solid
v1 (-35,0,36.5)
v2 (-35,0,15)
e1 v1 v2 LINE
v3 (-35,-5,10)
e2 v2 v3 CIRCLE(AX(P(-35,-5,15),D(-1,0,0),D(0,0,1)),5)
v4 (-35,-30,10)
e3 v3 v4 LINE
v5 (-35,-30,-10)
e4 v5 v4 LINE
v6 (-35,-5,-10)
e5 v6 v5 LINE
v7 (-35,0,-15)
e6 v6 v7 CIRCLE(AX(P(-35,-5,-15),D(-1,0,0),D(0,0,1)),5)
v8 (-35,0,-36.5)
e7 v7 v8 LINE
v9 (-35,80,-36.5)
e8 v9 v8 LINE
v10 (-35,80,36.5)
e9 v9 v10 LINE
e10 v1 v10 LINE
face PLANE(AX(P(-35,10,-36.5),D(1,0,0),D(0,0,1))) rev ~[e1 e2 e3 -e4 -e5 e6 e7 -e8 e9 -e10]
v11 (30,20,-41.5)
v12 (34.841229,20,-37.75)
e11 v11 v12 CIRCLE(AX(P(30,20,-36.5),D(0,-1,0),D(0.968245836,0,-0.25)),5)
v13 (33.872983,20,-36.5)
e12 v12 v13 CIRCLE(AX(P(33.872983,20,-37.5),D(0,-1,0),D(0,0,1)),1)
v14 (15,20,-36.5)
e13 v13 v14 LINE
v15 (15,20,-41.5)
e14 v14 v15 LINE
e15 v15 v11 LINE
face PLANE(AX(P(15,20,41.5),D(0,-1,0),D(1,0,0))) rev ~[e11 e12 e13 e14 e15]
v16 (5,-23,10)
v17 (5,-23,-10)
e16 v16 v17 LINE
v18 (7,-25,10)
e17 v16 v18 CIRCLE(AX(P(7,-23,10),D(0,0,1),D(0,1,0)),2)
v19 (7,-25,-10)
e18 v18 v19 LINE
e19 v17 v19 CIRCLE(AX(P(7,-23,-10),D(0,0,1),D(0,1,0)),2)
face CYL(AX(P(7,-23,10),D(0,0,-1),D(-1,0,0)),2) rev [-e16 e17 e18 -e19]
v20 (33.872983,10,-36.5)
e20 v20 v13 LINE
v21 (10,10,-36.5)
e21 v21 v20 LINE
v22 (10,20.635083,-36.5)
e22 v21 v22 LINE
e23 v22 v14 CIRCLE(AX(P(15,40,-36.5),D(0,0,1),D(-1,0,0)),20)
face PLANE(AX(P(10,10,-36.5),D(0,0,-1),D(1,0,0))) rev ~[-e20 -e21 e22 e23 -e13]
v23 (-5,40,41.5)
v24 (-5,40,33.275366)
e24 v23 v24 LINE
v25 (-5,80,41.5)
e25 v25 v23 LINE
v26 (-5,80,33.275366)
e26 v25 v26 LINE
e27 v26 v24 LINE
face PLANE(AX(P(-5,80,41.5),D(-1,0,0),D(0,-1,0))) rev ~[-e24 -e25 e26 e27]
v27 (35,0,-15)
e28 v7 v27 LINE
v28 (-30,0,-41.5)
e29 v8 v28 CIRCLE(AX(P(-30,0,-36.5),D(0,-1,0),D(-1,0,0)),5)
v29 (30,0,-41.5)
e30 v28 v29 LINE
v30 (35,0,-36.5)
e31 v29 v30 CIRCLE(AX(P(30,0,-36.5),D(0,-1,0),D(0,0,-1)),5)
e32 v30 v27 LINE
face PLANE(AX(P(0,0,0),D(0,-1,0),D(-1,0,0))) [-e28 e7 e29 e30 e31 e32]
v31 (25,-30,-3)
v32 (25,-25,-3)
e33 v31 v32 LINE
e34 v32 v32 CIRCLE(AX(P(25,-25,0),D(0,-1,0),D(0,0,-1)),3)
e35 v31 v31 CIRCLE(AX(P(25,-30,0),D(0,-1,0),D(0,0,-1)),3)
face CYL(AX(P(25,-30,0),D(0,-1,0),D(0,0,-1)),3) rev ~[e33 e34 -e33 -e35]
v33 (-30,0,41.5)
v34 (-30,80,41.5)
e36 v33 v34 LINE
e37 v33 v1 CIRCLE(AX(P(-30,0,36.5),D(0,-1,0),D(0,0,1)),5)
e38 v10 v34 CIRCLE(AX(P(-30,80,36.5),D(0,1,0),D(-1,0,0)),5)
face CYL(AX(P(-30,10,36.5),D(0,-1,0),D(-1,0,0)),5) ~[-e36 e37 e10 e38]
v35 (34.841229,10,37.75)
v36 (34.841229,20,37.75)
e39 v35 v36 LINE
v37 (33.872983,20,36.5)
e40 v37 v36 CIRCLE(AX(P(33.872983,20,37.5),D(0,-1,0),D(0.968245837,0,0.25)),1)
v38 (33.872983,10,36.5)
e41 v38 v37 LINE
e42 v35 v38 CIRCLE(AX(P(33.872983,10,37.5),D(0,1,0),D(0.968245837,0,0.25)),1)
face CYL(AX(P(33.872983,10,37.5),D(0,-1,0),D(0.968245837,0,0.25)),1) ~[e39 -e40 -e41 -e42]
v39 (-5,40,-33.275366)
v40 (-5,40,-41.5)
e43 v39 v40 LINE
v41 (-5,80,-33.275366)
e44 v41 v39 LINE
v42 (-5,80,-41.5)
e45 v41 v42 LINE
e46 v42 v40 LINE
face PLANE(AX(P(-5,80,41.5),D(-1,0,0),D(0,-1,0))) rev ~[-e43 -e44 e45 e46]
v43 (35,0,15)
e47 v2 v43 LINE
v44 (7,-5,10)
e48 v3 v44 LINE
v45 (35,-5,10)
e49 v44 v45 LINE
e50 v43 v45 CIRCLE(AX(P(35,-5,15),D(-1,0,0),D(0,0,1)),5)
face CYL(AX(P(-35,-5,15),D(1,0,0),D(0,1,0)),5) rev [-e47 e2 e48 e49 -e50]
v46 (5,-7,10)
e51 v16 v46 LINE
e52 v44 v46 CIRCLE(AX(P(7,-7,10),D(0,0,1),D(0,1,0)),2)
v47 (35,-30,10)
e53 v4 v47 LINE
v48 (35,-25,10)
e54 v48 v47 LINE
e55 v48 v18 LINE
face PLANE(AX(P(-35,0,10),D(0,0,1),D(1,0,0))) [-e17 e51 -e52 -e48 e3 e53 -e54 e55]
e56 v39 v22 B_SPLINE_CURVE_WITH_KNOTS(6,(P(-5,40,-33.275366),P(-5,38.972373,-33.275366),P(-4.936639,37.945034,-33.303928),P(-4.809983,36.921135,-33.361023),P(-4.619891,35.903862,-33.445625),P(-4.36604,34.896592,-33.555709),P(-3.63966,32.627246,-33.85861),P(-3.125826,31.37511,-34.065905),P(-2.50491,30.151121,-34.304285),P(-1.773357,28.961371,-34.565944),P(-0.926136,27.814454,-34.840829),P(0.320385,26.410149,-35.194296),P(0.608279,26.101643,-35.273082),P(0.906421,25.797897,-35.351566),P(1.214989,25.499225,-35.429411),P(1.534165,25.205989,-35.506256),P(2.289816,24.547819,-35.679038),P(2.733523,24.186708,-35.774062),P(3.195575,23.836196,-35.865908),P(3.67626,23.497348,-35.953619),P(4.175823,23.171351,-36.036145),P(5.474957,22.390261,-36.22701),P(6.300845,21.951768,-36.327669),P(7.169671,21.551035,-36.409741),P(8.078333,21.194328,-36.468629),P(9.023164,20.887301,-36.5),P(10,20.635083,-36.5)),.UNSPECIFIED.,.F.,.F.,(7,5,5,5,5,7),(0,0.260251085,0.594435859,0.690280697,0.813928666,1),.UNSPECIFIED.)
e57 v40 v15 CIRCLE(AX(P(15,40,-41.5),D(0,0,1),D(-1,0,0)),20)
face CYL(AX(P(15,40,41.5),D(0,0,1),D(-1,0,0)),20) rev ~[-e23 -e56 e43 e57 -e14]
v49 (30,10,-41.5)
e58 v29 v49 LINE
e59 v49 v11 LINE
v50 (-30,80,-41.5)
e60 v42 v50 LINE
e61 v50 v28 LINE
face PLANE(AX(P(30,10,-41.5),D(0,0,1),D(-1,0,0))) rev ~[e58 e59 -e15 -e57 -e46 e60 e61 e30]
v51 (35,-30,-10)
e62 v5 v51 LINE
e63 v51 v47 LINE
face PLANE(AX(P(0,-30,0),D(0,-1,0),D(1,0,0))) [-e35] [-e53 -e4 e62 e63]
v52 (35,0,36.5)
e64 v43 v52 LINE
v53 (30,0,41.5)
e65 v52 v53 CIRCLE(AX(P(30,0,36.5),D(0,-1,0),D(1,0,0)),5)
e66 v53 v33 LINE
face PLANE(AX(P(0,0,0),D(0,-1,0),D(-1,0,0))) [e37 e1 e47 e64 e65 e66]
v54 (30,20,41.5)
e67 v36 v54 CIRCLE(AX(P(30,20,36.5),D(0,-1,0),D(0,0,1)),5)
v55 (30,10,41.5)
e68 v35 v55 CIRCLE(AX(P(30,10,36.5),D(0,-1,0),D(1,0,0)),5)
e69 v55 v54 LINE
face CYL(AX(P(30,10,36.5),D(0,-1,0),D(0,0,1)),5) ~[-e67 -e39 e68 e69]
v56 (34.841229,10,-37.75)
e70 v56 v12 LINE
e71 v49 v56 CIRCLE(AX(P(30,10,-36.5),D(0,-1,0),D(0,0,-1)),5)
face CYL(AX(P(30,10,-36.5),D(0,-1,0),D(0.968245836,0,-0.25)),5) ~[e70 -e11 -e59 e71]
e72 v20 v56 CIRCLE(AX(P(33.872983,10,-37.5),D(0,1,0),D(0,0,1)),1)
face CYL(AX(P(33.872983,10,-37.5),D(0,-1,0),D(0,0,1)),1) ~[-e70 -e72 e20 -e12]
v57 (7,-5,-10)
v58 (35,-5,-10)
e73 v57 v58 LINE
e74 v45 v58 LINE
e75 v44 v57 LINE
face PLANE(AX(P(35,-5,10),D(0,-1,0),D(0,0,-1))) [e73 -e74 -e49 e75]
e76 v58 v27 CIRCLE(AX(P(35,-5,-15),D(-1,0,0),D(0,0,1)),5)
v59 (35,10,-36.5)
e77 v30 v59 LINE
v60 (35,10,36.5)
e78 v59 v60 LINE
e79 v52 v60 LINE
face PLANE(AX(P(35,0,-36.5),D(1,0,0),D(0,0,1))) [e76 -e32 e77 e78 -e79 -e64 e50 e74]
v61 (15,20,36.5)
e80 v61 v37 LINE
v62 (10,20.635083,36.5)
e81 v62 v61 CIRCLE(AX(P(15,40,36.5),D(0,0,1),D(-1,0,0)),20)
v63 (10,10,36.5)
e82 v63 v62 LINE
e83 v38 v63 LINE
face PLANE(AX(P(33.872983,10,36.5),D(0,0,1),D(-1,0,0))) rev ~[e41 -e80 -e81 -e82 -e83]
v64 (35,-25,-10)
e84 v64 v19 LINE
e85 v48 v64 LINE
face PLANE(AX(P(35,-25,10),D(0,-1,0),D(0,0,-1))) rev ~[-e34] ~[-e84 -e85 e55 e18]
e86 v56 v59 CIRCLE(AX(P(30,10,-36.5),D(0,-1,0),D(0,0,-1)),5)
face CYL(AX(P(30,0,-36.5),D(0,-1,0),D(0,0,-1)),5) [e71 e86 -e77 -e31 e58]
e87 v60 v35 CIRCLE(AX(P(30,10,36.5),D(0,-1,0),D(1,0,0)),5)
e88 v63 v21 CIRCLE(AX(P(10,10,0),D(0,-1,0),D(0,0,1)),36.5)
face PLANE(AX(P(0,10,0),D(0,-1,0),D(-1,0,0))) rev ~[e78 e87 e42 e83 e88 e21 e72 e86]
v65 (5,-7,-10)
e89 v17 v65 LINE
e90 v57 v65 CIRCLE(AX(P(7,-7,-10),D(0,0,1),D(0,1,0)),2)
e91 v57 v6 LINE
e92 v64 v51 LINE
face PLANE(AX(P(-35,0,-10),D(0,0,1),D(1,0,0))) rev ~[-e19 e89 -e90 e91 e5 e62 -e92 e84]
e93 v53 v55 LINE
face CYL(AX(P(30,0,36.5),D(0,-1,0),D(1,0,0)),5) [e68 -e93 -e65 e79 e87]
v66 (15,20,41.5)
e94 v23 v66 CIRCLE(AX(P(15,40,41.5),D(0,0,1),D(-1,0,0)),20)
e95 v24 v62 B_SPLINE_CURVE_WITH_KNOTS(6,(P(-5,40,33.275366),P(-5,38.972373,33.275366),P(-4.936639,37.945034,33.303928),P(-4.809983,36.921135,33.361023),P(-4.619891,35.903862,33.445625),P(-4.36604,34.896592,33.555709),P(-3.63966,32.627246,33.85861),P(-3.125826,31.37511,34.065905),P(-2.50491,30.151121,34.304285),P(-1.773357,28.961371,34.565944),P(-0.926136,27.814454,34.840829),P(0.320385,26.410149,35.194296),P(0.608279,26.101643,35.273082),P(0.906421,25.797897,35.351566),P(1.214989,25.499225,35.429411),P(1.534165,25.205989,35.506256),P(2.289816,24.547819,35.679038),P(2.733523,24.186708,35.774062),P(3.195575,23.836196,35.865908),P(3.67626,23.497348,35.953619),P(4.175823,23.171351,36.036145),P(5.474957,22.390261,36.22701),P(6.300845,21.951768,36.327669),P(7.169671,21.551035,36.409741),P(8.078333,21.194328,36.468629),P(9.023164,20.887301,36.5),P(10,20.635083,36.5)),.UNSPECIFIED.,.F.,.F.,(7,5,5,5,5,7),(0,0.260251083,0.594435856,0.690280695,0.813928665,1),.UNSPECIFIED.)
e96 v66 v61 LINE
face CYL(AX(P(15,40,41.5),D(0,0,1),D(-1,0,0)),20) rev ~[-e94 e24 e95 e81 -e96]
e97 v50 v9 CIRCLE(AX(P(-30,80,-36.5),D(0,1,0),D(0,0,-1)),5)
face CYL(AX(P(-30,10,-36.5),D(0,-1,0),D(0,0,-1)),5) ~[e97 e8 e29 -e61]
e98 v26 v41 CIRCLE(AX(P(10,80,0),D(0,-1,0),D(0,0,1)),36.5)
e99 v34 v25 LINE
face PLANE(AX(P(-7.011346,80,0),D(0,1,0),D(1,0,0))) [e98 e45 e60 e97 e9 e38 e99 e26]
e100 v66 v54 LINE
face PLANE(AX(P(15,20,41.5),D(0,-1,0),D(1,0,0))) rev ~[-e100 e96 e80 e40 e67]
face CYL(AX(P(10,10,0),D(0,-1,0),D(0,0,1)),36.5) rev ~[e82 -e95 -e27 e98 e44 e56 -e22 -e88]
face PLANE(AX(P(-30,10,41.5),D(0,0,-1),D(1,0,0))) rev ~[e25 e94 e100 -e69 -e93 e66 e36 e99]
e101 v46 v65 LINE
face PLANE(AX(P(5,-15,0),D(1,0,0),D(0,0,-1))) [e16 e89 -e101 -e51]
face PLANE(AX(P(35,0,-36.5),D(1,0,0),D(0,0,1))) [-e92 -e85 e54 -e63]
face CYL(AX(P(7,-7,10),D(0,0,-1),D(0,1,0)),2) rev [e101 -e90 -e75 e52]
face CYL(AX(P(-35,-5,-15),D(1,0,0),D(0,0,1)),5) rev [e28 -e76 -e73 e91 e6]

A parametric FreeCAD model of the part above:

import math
import FreeCAD as App
import Part
import Sketcher
from FreeCAD import Vector
Q = App.Units.Quantity


def edges_at(feature, points):
    """Names of the edges that pass closest to the given points."""
    edges = feature.Shape.Edges
    near = lambda p: min(range(len(edges)), key=lambda i: edges[i].distToShape(Part.Vertex(*p))[0])
    return sorted({f"Edge{near(p) + 1}" for p in points})


def add_polygon(sketch, points):
    """Adds a closed chain of lines whose ends are joined by coincident constraints."""
    first, n = sketch.GeometryCount, len(points)
    for a, b in zip(points, points[1:] + points[:1]):
        sketch.addGeometry(Part.LineSegment(App.Vector(*a, 0), App.Vector(*b, 0)), False)
    for i in range(n):
        sketch.addConstraint(Sketcher.Constraint("Coincident", first + i, 2, first + (i + 1) % n, 1))

doc = App.newDocument("Part")
params = doc.addObject("Spreadsheet::Sheet", "Params")
for row, (alias, value) in enumerate([
    ("sketch1_radius", "5 mm"),
    ("sketch1_width", "60 mm"),
    ("sketch1_height", "73 mm"),
    ("pad1_length", "10 mm"),
    ("sketch2_radius", "5 mm"),
    ("sketch2_radius2", "1 mm"),
    ("sketch2_radius3", "36.5 mm"),
    ("sketch2_width", "60 mm"),
    ("pad2_length", "70 mm"),
    ("sketch3_width", "70 mm"),
    ("sketch3_height", "20 mm"),
    ("pad3_length", "30 mm"),
    ("sketch4_diameter", "6 mm"),
    ("pocket1_length", "15 mm"),
    ("fillet_radius", "5 mm"),
    ("sketch5_width", "20 mm"),
    ("pocket2_length", "30 mm"),
    ("fillet2_radius", "2 mm"),
    ("sketch6_radius", "20 mm"),
    ("sketch6_width", "40 mm"),
], start=1):
    params.set(f"A{row}", alias)
    params.set(f"B{row}", "=" + value)
    params.setAlias(f"B{row}", alias)

body = doc.addObject("PartDesign::Body", "Body")

# Sketch on XZ plane
sketch1 = body.newObject("Sketcher::SketchObject", "Sketch")
sketch1.AttachmentSupport = (doc.getObject("XZ_Plane"), [""])
sketch1.MapMode = "FlatFace"
sketch1.addGeometry(Part.LineSegment(Vector(30, -42, 0), Vector(-30, -42, 0)), False)
sketch1.addGeometry(Part.ArcOfCircle(Part.Circle(Vector(-30, -36, 0), Vector(0, 0, 1), 5), math.radians(180), math.radians(270)), False)
sketch1.addGeometry(Part.LineSegment(Vector(-35, -36, 0), Vector(-35, 36, 0)), False)
sketch1.addGeometry(Part.ArcOfCircle(Part.Circle(Vector(-30, 36, 0), Vector(0, 0, 1), 5), math.radians(90), math.radians(180)), False)
sketch1.addGeometry(Part.LineSegment(Vector(-30, 42, 0), Vector(30, 42, 0)), False)
sketch1.addGeometry(Part.ArcOfCircle(Part.Circle(Vector(30, 36, 0), Vector(0, 0, 1), 5), math.radians(0), math.radians(90)), False)
sketch1.addGeometry(Part.LineSegment(Vector(35, 36, 0), Vector(35, -36, 0)), False)
sketch1.addGeometry(Part.ArcOfCircle(Part.Circle(Vector(30, -36, 0), Vector(0, 0, 1), 5), math.radians(-90), math.radians(0)), False)
sketch1.addConstraint(Sketcher.Constraint("Tangent", 0, 2, 1, 2))
sketch1.addConstraint(Sketcher.Constraint("Tangent", 1, 1, 2, 1))
sketch1.addConstraint(Sketcher.Constraint("Tangent", 2, 2, 3, 2))
sketch1.addConstraint(Sketcher.Constraint("Tangent", 3, 1, 4, 1))
sketch1.addConstraint(Sketcher.Constraint("Tangent", 4, 2, 5, 2))
sketch1.addConstraint(Sketcher.Constraint("Tangent", 5, 1, 6, 1))
sketch1.addConstraint(Sketcher.Constraint("Tangent", 6, 2, 7, 2))
sketch1.addConstraint(Sketcher.Constraint("Tangent", 7, 1, 0, 1))
sketch1.addConstraint(Sketcher.Constraint("Horizontal", 0))
sketch1.addConstraint(Sketcher.Constraint("Vertical", 2))
sketch1.addConstraint(Sketcher.Constraint("Horizontal", 4))
sketch1.addConstraint(Sketcher.Constraint("Vertical", 6))
sketch1.addConstraint(Sketcher.Constraint("Equal", 1, 3))
sketch1.addConstraint(Sketcher.Constraint("Equal", 3, 5))
sketch1.addConstraint(Sketcher.Constraint("Equal", 5, 7))
sketch1.addConstraint(Sketcher.Constraint("Symmetric", 1, 3, 5, 3, -1, 1))
sketch1.addConstraint(Sketcher.Constraint("Radius", 1, Q("5 mm")))
sketch1.addConstraint(Sketcher.Constraint("DistanceX", 0, 2, 0, 1, Q("60 mm")))
sketch1.addConstraint(Sketcher.Constraint("DistanceY", 2, 1, 2, 2, Q("73 mm")))
sketch1.setExpression("Constraints[16]", "Params.sketch1_radius")
sketch1.setExpression("Constraints[17]", "Params.sketch1_width")
sketch1.setExpression("Constraints[18]", "Params.sketch1_height")
pad1 = body.newObject("PartDesign::Pad", "Pad")
pad1.Profile = sketch1
pad1.setExpression("Length", "Params.pad1_length")
pad1.Reversed = True

# Sketch on XZ plane
sketch2 = body.newObject("Sketcher::SketchObject", "Sketch001")
sketch2.AttachmentSupport = (doc.getObject("XZ_Plane"), [""])
sketch2.MapMode = "FlatFace"
sketch2.AttachmentOffset = App.Placement(Vector(0, 0, -10), App.Rotation())
sketch2.addGeometry(Part.LineSegment(Vector(-35, -36.5, 0), Vector(-35, 36.5, 0)), False)
sketch2.addGeometry(Part.ArcOfCircle(Part.Circle(Vector(-30, 36.5, 0), Vector(0, 0, 1), 5), math.radians(90), math.radians(180)), False)
sketch2.addGeometry(Part.LineSegment(Vector(-30, 41.5, 0), Vector(30, 41.5, 0)), False)
sketch2.addGeometry(Part.ArcOfCircle(Part.Circle(Vector(30, 36.5, 0), Vector(0, 0, 1), 5), math.radians(14), math.radians(90)), False)
sketch2.addGeometry(Part.ArcOfCircle(Part.Circle(Vector(33.9, 37.5, 0), Vector(0, 0, 1), 1), math.radians(-90), math.radians(14)), False)
sketch2.addGeometry(Part.LineSegment(Vector(33.9, 36.5, 0), Vector(10, 36.5, 0)), False)
sketch2.addGeometry(Part.ArcOfCircle(Part.Circle(Vector(10, 0, 0), Vector(0, 0, 1), 36.5), math.radians(90), math.radians(270)), False)
sketch2.addGeometry(Part.LineSegment(Vector(10, -36.5, 0), Vector(33.9, -36.5, 0)), False)
sketch2.addGeometry(Part.ArcOfCircle(Part.Circle(Vector(33.9, -37.5, 0), Vector(0, 0, 1), 1), math.radians(-14), math.radians(90)), False)
sketch2.addGeometry(Part.ArcOfCircle(Part.Circle(Vector(30, -36.5, 0), Vector(0, 0, 1), 5), math.radians(-90), math.radians(-14)), False)
sketch2.addGeometry(Part.LineSegment(Vector(30, -41.5, 0), Vector(-30, -41.5, 0)), False)
sketch2.addGeometry(Part.ArcOfCircle(Part.Circle(Vector(-30, -36.5, 0), Vector(0, 0, 1), 5), math.radians(180), math.radians(270)), False)
sketch2.addConstraint(Sketcher.Constraint("Tangent", 0, 2, 1, 2))
sketch2.addConstraint(Sketcher.Constraint("Tangent", 1, 1, 2, 1))
sketch2.addConstraint(Sketcher.Constraint("Tangent", 2, 2, 3, 2))
sketch2.addConstraint(Sketcher.Constraint("Tangent", 3, 1, 4, 2))
sketch2.addConstraint(Sketcher.Constraint("Tangent", 4, 1, 5, 1))
sketch2.addConstraint(Sketcher.Constraint("Tangent", 5, 2, 6, 1))
sketch2.addConstraint(Sketcher.Constraint("Tangent", 6, 2, 7, 1))
sketch2.addConstraint(Sketcher.Constraint("Tangent", 7, 2, 8, 2))
sketch2.addConstraint(Sketcher.Constraint("Tangent", 8, 1, 9, 2))
sketch2.addConstraint(Sketcher.Constraint("Tangent", 9, 1, 10, 1))
sketch2.addConstraint(Sketcher.Constraint("Tangent", 10, 2, 11, 2))
sketch2.addConstraint(Sketcher.Constraint("Tangent", 11, 1, 0, 1))
sketch2.addConstraint(Sketcher.Constraint("Vertical", 0))
sketch2.addConstraint(Sketcher.Constraint("Horizontal", 2))
sketch2.addConstraint(Sketcher.Constraint("Horizontal", 5))
sketch2.addConstraint(Sketcher.Constraint("Horizontal", 7))
sketch2.addConstraint(Sketcher.Constraint("Horizontal", 10))
sketch2.addConstraint(Sketcher.Constraint("Equal", 1, 3))
sketch2.addConstraint(Sketcher.Constraint("Equal", 4, 8))
sketch2.addConstraint(Sketcher.Constraint("Equal", 3, 9))
sketch2.addConstraint(Sketcher.Constraint("Equal", 9, 11))
sketch2.addConstraint(Sketcher.Constraint("Symmetric", 1, 3, 9, 3, -1, 1))
sketch2.addConstraint(Sketcher.Constraint("Symmetric", 4, 3, 8, 3, -1))
sketch2.addConstraint(Sketcher.Constraint("Horizontal", 0, 2, 4, 1))
sketch2.addConstraint(Sketcher.Constraint("Radius", 1, Q("5 mm")))
sketch2.addConstraint(Sketcher.Constraint("Radius", 4, Q("1 mm")))
sketch2.addConstraint(Sketcher.Constraint("Radius", 6, Q("36.5 mm")))
sketch2.addConstraint(Sketcher.Constraint("DistanceX", 2, 1, 2, 2, Q("60 mm")))
sketch2.addConstraint(Sketcher.Constraint("DistanceX", -1, 1, 6, 3, Q("10 mm")))
sketch2.setExpression("Constraints[24]", "Params.sketch2_radius")
sketch2.setExpression("Constraints[25]", "Params.sketch2_radius2")
sketch2.setExpression("Constraints[26]", "Params.sketch2_radius3")
sketch2.setExpression("Constraints[27]", "Params.sketch2_width")
pad2 = body.newObject("PartDesign::Pad", "Pad001")
pad2.Profile = sketch2
pad2.setExpression("Length", "Params.pad2_length")
pad2.Reversed = True

# Sketch on XZ plane
sketch3 = body.newObject("Sketcher::SketchObject", "Sketch002")
sketch3.AttachmentSupport = (doc.getObject("XZ_Plane"), [""])
sketch3.MapMode = "FlatFace"
add_polygon(sketch3, [(-35, 10), (-35, -10), (35, -10), (35, 10)])  # lines 0-3
sketch3.addConstraint(Sketcher.Constraint("Vertical", 0))
sketch3.addConstraint(Sketcher.Constraint("Horizontal", 1))
sketch3.addConstraint(Sketcher.Constraint("Vertical", 2))
sketch3.addConstraint(Sketcher.Constraint("Horizontal", 3))
sketch3.addConstraint(Sketcher.Constraint("Symmetric", 0, 2, 2, 2, -1, 1))
sketch3.addConstraint(Sketcher.Constraint("DistanceX", 1, 1, 1, 2, Q("70 mm")))
sketch3.addConstraint(Sketcher.Constraint("DistanceY", 0, 2, 0, 1, Q("20 mm")))
sketch3.setExpression("Constraints[9]", "Params.sketch3_width")
sketch3.setExpression("Constraints[10]", "Params.sketch3_height")
pad3 = body.newObject("PartDesign::Pad", "Pad002")
pad3.Profile = sketch3
pad3.setExpression("Length", "Params.pad3_length")

# Sketch on XZ plane
sketch4 = body.newObject("Sketcher::SketchObject", "Sketch003")
sketch4.AttachmentSupport = (doc.getObject("XZ_Plane"), [""])
sketch4.MapMode = "FlatFace"
sketch4.AttachmentOffset = App.Placement(Vector(0, 0, 30), App.Rotation())
sketch4.addGeometry(Part.Circle(Vector(25, 0, 0), Vector(0, 0, 1), 3), False)
sketch4.addConstraint(Sketcher.Constraint("PointOnObject", 0, 3, -1))
sketch4.addConstraint(Sketcher.Constraint("Diameter", 0, Q("6 mm")))
sketch4.addConstraint(Sketcher.Constraint("DistanceX", -1, 1, 0, 3, Q("25 mm")))
sketch4.setExpression("Constraints[1]", "Params.sketch4_diameter")
pocket1 = body.newObject("PartDesign::Pocket", "Pocket")
pocket1.Profile = sketch4
pocket1.setExpression("Length", "Params.pocket1_length")
doc.recompute()

fillet = body.newObject("PartDesign::Fillet", "Fillet")
fillet.Base = (pocket1, edges_at(pocket1, [(0, 0, -10), (0, 0, 10)]))
fillet.setExpression("Radius", "Params.fillet_radius")

# Sketch on YZ plane
sketch5 = body.newObject("Sketcher::SketchObject", "Sketch004")
sketch5.AttachmentSupport = (doc.getObject("YZ_Plane"), [""])
sketch5.MapMode = "FlatFace"
sketch5.AttachmentOffset = App.Placement(Vector(0, 0, 35), App.Rotation())
add_polygon(sketch5, [(-5, 10), (-25, 10), (-25, -10), (-5, -10)])  # lines 0-3
sketch5.addConstraint(Sketcher.Constraint("Horizontal", 0))
sketch5.addConstraint(Sketcher.Constraint("Vertical", 1))
sketch5.addConstraint(Sketcher.Constraint("Horizontal", 2))
sketch5.addConstraint(Sketcher.Constraint("Vertical", 3))
sketch5.addConstraint(Sketcher.Constraint("Equal", 2, 1))
sketch5.addConstraint(Sketcher.Constraint("DistanceX", 0, 2, 0, 1, Q("20 mm")))
sketch5.addConstraint(Sketcher.Constraint("DistanceX", 0, 2, -1, 1, Q("25 mm")))
sketch5.addConstraint(Sketcher.Constraint("DistanceY", -1, 1, 0, 2, Q("10 mm")))
sketch5.setExpression("Constraints[9]", "Params.sketch5_width")
pocket2 = body.newObject("PartDesign::Pocket", "Pocket001")
pocket2.Profile = sketch5
pocket2.setExpression("Length", "Params.pocket2_length")
doc.recompute()

fillet2 = body.newObject("PartDesign::Fillet", "Fillet001")
fillet2.Base = (pocket2, edges_at(pocket2, [(5, -25, 0), (5, -5, 0)]))
fillet2.setExpression("Radius", "Params.fillet2_radius")

# Sketch on XY plane
sketch6 = body.newObject("Sketcher::SketchObject", "Sketch005")
sketch6.AttachmentSupport = (doc.getObject("XY_Plane"), [""])
sketch6.MapMode = "FlatFace"
sketch6.AttachmentOffset = App.Placement(Vector(0, 0, 41.5), App.Rotation())
sketch6.addGeometry(Part.LineSegment(Vector(35, 80, 0), Vector(-5, 80, 0)), False)
sketch6.addGeometry(Part.LineSegment(Vector(-5, 80, 0), Vector(-5, 40, 0)), False)
sketch6.addGeometry(Part.ArcOfCircle(Part.Circle(Vector(15, 40, 0), Vector(0, 0, 1), 20), math.radians(180), math.radians(270)), False)
sketch6.addGeometry(Part.LineSegment(Vector(15, 20, 0), Vector(35, 20, 0)), False)
sketch6.addGeometry(Part.LineSegment(Vector(35, 20, 0), Vector(35, 80, 0)), False)
sketch6.addConstraint(Sketcher.Constraint("Coincident", 0, 2, 1, 1))
sketch6.addConstraint(Sketcher.Constraint("Tangent", 1, 2, 2, 1))
sketch6.addConstraint(Sketcher.Constraint("Tangent", 2, 2, 3, 1))
sketch6.addConstraint(Sketcher.Constraint("Coincident", 3, 2, 4, 1))
sketch6.addConstraint(Sketcher.Constraint("Coincident", 4, 2, 0, 1))
sketch6.addConstraint(Sketcher.Constraint("Horizontal", 0))
sketch6.addConstraint(Sketcher.Constraint("Vertical", 1))
sketch6.addConstraint(Sketcher.Constraint("Horizontal", 3))
sketch6.addConstraint(Sketcher.Constraint("Vertical", 4))
sketch6.addConstraint(Sketcher.Constraint("Equal", 0, 1))
sketch6.addConstraint(Sketcher.Constraint("Radius", 2, Q("20 mm")))
sketch6.addConstraint(Sketcher.Constraint("DistanceX", 0, 2, 0, 1, Q("40 mm")))
sketch6.addConstraint(Sketcher.Constraint("DistanceX", -1, 1, 2, 3, Q("15 mm")))
sketch6.addConstraint(Sketcher.Constraint("DistanceY", -1, 1, 2, 3, Q("40 mm")))
sketch6.setExpression("Constraints[10]", "Params.sketch6_radius")
sketch6.setExpression("Constraints[11]", "Params.sketch6_width")
pocket3 = body.newObject("PartDesign::Pocket", "Pocket002")
pocket3.Profile = sketch6
pocket3.Type = "ThroughAll"

doc.recompute()
